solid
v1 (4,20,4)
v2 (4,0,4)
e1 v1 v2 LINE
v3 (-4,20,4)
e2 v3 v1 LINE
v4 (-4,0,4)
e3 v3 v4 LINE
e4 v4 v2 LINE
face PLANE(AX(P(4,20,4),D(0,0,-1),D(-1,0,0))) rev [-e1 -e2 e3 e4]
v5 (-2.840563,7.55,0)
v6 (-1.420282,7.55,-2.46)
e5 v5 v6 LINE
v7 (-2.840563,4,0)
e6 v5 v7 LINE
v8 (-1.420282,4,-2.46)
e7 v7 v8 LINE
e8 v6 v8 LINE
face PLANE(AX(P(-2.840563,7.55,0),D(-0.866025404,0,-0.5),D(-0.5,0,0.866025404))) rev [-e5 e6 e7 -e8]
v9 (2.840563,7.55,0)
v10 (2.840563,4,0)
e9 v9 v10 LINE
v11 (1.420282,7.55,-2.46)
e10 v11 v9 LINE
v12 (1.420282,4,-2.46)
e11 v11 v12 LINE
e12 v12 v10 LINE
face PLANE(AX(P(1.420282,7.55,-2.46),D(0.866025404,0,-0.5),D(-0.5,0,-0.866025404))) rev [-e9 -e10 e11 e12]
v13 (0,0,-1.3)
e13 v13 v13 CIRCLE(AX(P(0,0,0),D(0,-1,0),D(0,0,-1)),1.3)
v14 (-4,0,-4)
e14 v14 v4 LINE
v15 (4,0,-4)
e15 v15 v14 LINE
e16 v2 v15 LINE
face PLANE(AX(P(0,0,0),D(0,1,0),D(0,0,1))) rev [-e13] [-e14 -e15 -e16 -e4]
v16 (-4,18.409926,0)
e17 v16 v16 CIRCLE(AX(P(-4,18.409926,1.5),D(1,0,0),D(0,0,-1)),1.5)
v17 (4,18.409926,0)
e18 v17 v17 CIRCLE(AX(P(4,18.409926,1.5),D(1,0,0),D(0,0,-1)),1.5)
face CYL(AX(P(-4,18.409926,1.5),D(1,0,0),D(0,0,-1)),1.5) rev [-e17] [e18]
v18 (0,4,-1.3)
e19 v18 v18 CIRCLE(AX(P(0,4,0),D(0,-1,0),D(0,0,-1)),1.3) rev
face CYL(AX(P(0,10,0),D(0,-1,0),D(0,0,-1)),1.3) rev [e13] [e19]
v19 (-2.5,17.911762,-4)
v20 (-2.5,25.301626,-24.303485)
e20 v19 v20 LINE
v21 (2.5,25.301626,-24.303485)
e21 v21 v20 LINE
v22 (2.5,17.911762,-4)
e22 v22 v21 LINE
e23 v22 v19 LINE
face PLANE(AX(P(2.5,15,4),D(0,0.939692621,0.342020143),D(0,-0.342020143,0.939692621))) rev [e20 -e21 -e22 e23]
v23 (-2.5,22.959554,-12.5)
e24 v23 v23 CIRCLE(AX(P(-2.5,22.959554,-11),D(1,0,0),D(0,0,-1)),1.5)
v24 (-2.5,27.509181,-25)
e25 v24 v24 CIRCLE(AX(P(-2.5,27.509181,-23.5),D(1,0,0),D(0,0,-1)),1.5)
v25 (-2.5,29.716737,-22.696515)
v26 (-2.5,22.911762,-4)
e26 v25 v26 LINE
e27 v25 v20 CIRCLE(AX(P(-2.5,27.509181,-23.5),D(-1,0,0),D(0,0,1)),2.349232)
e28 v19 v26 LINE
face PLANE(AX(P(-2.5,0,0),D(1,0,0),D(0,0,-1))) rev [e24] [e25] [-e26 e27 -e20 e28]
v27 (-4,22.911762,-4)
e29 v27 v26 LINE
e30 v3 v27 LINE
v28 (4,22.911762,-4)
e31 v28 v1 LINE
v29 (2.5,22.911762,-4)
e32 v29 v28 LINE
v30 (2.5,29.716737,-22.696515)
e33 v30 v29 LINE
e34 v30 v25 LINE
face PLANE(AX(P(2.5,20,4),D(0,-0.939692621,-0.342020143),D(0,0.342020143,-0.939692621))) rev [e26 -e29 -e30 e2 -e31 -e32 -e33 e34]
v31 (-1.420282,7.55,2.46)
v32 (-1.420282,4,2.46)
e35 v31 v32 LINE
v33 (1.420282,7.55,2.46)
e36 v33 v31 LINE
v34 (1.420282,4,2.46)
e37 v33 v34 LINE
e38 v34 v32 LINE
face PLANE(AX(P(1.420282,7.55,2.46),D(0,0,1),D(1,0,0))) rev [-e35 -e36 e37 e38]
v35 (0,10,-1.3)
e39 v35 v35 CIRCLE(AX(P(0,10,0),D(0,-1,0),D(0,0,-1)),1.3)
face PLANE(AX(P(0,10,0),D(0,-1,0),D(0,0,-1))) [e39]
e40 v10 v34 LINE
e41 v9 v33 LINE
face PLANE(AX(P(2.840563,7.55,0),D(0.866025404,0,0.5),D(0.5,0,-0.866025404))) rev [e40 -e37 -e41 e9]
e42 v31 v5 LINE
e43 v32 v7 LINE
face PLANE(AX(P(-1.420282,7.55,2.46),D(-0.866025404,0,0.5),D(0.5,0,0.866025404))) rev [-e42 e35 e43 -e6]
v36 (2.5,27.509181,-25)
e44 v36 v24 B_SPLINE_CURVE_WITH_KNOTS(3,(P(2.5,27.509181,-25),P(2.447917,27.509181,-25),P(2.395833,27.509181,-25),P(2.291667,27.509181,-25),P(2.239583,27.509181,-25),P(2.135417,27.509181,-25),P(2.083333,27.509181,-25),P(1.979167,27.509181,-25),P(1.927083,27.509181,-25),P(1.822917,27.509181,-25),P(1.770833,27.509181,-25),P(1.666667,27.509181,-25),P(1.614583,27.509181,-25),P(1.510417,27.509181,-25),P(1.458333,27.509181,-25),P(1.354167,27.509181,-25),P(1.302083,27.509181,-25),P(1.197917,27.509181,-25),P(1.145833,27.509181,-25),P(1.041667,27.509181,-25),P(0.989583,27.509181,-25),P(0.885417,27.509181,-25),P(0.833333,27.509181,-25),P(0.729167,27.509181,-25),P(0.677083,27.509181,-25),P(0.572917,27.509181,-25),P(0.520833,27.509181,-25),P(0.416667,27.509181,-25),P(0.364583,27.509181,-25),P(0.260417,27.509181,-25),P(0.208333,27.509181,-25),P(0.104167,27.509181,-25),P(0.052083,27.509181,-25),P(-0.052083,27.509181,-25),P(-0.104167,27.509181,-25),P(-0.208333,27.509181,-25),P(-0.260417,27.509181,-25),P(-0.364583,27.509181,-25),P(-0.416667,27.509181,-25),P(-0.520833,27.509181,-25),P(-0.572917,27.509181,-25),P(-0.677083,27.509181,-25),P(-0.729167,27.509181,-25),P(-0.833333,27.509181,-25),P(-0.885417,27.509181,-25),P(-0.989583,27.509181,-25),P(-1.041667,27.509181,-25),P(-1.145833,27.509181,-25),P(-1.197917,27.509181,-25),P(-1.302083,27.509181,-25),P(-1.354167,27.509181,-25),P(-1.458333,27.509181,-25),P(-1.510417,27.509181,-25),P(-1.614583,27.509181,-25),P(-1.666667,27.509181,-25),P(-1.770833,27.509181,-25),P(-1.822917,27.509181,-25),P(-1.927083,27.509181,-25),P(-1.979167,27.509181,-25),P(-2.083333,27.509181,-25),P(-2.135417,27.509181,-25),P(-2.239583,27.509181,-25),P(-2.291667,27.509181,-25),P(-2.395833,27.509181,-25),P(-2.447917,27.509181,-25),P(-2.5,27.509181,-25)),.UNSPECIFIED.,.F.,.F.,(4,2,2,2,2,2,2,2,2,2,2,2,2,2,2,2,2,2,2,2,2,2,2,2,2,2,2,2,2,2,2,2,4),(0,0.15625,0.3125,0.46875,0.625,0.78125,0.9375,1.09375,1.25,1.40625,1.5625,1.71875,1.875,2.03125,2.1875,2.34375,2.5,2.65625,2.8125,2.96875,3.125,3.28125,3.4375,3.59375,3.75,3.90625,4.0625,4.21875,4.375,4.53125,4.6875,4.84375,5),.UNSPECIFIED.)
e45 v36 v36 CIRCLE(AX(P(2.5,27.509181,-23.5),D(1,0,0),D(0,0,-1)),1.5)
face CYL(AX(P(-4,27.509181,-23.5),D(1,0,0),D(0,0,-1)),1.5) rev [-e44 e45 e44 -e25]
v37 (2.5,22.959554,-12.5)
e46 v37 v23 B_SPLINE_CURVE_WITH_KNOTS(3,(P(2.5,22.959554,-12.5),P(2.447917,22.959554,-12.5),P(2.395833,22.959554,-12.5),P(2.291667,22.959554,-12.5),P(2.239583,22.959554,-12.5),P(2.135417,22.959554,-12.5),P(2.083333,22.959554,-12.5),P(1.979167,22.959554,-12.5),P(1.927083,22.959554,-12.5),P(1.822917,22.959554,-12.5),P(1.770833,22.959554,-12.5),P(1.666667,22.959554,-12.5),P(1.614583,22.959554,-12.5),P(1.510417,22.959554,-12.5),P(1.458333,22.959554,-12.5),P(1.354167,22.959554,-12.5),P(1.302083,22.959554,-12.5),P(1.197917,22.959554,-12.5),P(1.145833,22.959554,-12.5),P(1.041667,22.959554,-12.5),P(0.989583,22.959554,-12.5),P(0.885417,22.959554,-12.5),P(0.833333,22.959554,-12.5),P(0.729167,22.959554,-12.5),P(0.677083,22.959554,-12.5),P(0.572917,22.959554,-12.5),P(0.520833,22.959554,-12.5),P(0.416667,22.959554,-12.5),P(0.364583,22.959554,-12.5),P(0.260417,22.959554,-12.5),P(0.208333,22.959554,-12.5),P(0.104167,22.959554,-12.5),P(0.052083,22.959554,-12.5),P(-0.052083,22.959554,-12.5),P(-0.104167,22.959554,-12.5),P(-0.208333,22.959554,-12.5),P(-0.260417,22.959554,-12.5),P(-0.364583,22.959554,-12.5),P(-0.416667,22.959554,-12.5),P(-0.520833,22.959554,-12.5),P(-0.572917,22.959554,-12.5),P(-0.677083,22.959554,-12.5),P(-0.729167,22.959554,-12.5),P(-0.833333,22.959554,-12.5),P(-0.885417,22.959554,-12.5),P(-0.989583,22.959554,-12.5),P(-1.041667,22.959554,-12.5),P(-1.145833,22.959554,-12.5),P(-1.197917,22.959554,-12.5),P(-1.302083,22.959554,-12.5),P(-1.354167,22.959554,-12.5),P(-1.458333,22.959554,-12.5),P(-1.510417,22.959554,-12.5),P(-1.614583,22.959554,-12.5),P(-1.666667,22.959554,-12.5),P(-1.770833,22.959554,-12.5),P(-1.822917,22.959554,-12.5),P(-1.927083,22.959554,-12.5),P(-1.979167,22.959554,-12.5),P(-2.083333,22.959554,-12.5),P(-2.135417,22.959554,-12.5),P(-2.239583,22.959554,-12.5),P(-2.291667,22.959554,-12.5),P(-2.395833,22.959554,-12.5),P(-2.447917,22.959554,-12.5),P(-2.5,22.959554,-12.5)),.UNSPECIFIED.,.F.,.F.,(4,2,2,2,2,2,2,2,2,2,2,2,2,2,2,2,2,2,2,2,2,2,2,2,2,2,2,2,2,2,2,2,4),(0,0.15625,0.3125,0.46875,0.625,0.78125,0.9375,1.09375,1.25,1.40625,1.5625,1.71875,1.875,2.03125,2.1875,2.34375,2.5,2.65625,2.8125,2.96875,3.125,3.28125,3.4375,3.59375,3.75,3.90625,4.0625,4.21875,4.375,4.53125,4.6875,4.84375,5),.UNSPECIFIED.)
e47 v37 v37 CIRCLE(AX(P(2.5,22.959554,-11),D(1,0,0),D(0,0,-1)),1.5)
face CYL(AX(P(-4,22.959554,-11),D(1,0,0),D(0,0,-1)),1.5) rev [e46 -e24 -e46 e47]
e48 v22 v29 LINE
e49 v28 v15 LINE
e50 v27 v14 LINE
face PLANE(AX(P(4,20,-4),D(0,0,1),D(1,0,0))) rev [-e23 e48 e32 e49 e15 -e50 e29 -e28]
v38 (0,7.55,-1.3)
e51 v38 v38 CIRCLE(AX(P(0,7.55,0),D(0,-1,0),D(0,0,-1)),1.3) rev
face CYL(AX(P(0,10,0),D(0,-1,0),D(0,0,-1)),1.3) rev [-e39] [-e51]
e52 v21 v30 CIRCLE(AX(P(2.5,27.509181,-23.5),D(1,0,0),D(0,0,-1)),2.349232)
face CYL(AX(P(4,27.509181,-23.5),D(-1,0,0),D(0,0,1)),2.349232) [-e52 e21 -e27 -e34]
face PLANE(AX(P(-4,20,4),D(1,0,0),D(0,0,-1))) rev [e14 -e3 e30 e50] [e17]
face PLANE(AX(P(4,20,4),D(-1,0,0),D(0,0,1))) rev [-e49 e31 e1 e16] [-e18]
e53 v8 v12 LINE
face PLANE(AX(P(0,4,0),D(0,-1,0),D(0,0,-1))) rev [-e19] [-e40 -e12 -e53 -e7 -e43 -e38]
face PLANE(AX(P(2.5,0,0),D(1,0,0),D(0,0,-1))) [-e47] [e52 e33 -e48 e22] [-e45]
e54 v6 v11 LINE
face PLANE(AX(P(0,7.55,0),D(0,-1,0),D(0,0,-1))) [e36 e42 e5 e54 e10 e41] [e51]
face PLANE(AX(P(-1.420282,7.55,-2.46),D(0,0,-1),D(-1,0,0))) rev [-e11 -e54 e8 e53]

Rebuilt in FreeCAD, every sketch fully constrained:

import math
import FreeCAD as App
import Part
import Sketcher
Q = App.Units.Quantity


def add_polygon(sketch, points):
    """Adds a closed chain of lines whose ends are joined by coincident constraints."""
    first, n = sketch.GeometryCount, len(points)
    for a, b in zip(points, points[1:] + points[:1]):
        sketch.addGeometry(Part.LineSegment(App.Vector(*a, 0), App.Vector(*b, 0)), False)
    for i in range(n):
        sketch.addConstraint(Sketcher.Constraint("Coincident", first + i, 2, first + (i + 1) % n, 1))

doc = App.newDocument("Part")
params = doc.addObject("Spreadsheet::Sheet", "Params")
for row, (alias, value) in enumerate([
    ("sketch1_width", "8 mm"),
    ("pad1_length", "20 mm"),
    ("sketch2_width", "5 mm"),
    ("pad2_length", "5 mm"),
    ("sketch3_diameter", "3 mm"),
    ("sketch4_width", "5 mm"),
    ("sketch5_diameter", "2.6 mm"),
    ("pocket3_length", "10 mm"),
    ("sketch6_height", "8 mm"),
    ("pad3_length", "8 mm"),
    ("pocket4_length", "3.55 mm"),
], start=1):
    params.set(f"A{row}", alias)
    params.set(f"B{row}", "=" + value)
    params.setAlias(f"B{row}", alias)

body = doc.addObject("PartDesign::Body", "Body")

# Sketch on XZ plane
sketch1 = doc.addObject("Sketcher::SketchObject", "Sketch")
body.addObject(sketch1)
sketch1.AttachmentSupport = (doc.XZ_Plane, [""])
sketch1.MapMode = "FlatFace"
add_polygon(sketch1, [(-4, -4), (-4, 4), (4, 4), (4, -4)])  # lines 0-3
sketch1.addConstraint([
    Sketcher.Constraint("Vertical", 0),
    Sketcher.Constraint("Horizontal", 1),
    Sketcher.Constraint("Vertical", 2),
    Sketcher.Constraint("Horizontal", 3),
    Sketcher.Constraint("Symmetric", 0, 2, 2, 2, -1, 1),
    Sketcher.Constraint("Equal", 3, 0),
    Sketcher.Constraint("DistanceX", 1, 1, 1, 2, 8.0),
])
sketch1.setExpression("Constraints[10]", "Params.sketch1_width")
pad1 = doc.addObject("PartDesign::Pad", "Pad")
body.addObject(pad1)
pad1.Profile = sketch1
pad1.setExpression("Length", "Params.pad1_length")
pad1.Reversed = True

# Sketch on YZ plane
sketch2 = doc.addObject("Sketcher::SketchObject", "Sketch001")
body.addObject(sketch2)
sketch2.AttachmentSupport = (doc.YZ_Plane, [""])
sketch2.MapMode = "FlatFace"
add_polygon(sketch2, [(31, -26), (20, 4), (15, 4), (26, -26)])  # lines 0-3
sketch2.addConstraint([
    Sketcher.Constraint("Horizontal", 1),
    Sketcher.Constraint("Horizontal", 3),
    Sketcher.Constraint("Parallel", 0, 2),
    Sketcher.Constraint("DistanceX", 1, 2, 1, 1, 5.0),
    Sketcher.Constraint("Angle", 0, Q("110 deg")),
    Sketcher.Constraint("DistanceX", -1, 1, 0, 2, 20.0),
    Sketcher.Constraint("DistanceY", -1, 1, 0, 2, 4.0),
    Sketcher.Constraint("DistanceY", 2, 2, -1, 1, 26.0),
])
sketch2.setExpression("Constraints[7]", "Params.sketch2_width")
pad2 = doc.addObject("PartDesign::Pad", "Pad001")
body.addObject(pad2)
pad2.Profile = sketch2
pad2.setExpression("Length", "Params.pad2_length")
pad2.Midplane = True

# Sketch on YZ plane
sketch3 = doc.addObject("Sketcher::SketchObject", "Sketch002")
body.addObject(sketch3)
sketch3.AttachmentSupport = (doc.YZ_Plane, [""])
sketch3.MapMode = "FlatFace"
sketch3.AttachmentOffset = App.Placement(App.Vector(0, 0, 2.5), App.Rotation())
sketch3.addGeometry([
    Part.Circle(App.Vector(18.4, 1.5, 0), App.Vector(0, 0, 1), 1.5),
    Part.Circle(App.Vector(27.5, -23.5, 0), App.Vector(0, 0, 1), 1.5),
    Part.Circle(App.Vector(23, -11, 0), App.Vector(0, 0, 1), 1.5),
], False)
sketch3.addConstraint([
    Sketcher.Constraint("Equal", 0, 1),
    Sketcher.Constraint("Equal", 1, 2),
    Sketcher.Constraint("Diameter", 0, 3.0),
    Sketcher.Constraint("DistanceY", 2, 3, -1, 1, 11.0),
    Sketcher.Constraint("DistanceY", 1, 3, 0, 3, 25.0),
    Sketcher.Constraint("DistanceY", -1, 1, 0, 3, 1.5),
    Sketcher.Constraint("DistanceX", -1, 1, 1, 3, 27.509181),
    Sketcher.Constraint("DistanceX", -1, 1, 0, 3, 18.409926),
    Sketcher.Constraint("DistanceX", -1, 1, 2, 3, 22.959554),
])
sketch3.setExpression("Constraints[2]", "Params.sketch3_diameter")
pocket1 = doc.addObject("PartDesign::Pocket", "Pocket")
body.addObject(pocket1)
pocket1.Profile = sketch3
pocket1.Type = "ThroughAll"
pocket1.Midplane = True

# Sketch on YZ plane
sketch4 = doc.addObject("Sketcher::SketchObject", "Sketch003")
body.addObject(sketch4)
sketch4.AttachmentSupport = (doc.YZ_Plane, [""])
sketch4.MapMode = "FlatFace"
sketch4.AttachmentOffset = App.Placement(App.Vector(0, 0, -2.5), App.Rotation())
sketch4.addGeometry([
    Part.LineSegment(App.Vector(30.9, -26, 0), App.Vector(25.9, -26, 0)),
    Part.LineSegment(App.Vector(25.9, -26, 0), App.Vector(25.3, -24.3, 0)),
    Part.ArcOfCircle(Part.Circle(App.Vector(27.5, -23.5, 0), App.Vector(0, 0, 1), 2.3), math.radians(-160), math.radians(20)),
    Part.LineSegment(App.Vector(29.7, -22.7, 0), App.Vector(30.9, -26, 0)),
], False)
sketch4.addConstraint([
    Sketcher.Constraint("Coincident", 0, 2, 1, 1),
    Sketcher.Constraint("Tangent", 1, 2, 2, 1),
    Sketcher.Constraint("Tangent", 2, 2, 3, 1),
    Sketcher.Constraint("Coincident", 3, 2, 0, 1),
    Sketcher.Constraint("Horizontal", 0),
    Sketcher.Constraint("Parallel", 1, 3),
    Sketcher.Constraint("DistanceX", 0, 2, 0, 1, 5.0),
    Sketcher.Constraint("Angle", 1, Q("110 deg")),
    Sketcher.Constraint("DistanceY", 0, 2, -1, 1, 26.0),
    Sketcher.Constraint("DistanceY", 2, 3, -1, 1, 23.5),
    Sketcher.Constraint("DistanceX", -1, 1, 2, 3, 27.509181),
])
sketch4.setExpression("Constraints[6]", "Params.sketch4_width")
pocket2 = doc.addObject("PartDesign::Pocket", "Pocket001")
body.addObject(pocket2)
pocket2.Profile = sketch4
pocket2.Type = "ThroughAll"
pocket2.Reversed = True

# Sketch on XZ plane
sketch5 = doc.addObject("Sketcher::SketchObject", "Sketch004")
body.addObject(sketch5)
sketch5.AttachmentSupport = (doc.XZ_Plane, [""])
sketch5.MapMode = "FlatFace"
sketch5.addGeometry(Part.Circle(App.Vector(0, 0, 0), App.Vector(0, 0, 1), 1.3), False)
sketch5.addConstraint([
    Sketcher.Constraint("Coincident", 0, 3, -1, 1),
    Sketcher.Constraint("Diameter", 0, 2.6),
])
sketch5.setExpression("Constraints[1]", "Params.sketch5_diameter")
pocket3 = doc.addObject("PartDesign::Pocket", "Pocket002")
body.addObject(pocket3)
pocket3.Profile = sketch5
pocket3.setExpression("Length", "Params.pocket3_length")

# Sketch on YZ plane
sketch6 = doc.addObject("Sketcher::SketchObject", "Sketch005")
body.addObject(sketch6)
sketch6.AttachmentSupport = (doc.YZ_Plane, [""])
sketch6.MapMode = "FlatFace"
sketch6.AttachmentOffset = App.Placement(App.Vector(0, 0, 4), App.Rotation())
add_polygon(sketch6, [(20, 4), (20, -4), (22.9, -4)])  # lines 0-2
sketch6.addConstraint([
    Sketcher.Constraint("Vertical", 0),
    Sketcher.Constraint("Horizontal", 1),
    Sketcher.Constraint("DistanceY", 0, 2, 0, 1, 8.0),
    Sketcher.Constraint("Angle", 2, Q("110 deg")),
    Sketcher.Constraint("DistanceX", -1, 1, 0, 2, 20.0),
    Sketcher.Constraint("DistanceY", 0, 2, -1, 1, 4.0),
])
sketch6.setExpression("Constraints[5]", "Params.sketch6_height")
pad3 = doc.addObject("PartDesign::Pad", "Pad002")
body.addObject(pad3)
pad3.Profile = sketch6
pad3.setExpression("Length", "Params.pad3_length")
pad3.Reversed = True

# Sketch on XZ plane
sketch7 = doc.addObject("Sketcher::SketchObject", "Sketch006")
body.addObject(sketch7)
sketch7.AttachmentSupport = (doc.XZ_Plane, [""])
sketch7.MapMode = "FlatFace"
sketch7.AttachmentOffset = App.Placement(App.Vector(0, 0, -4), App.Rotation())
add_polygon(sketch7, [(2.8, 0), (1.4, 2.5), (-1.4, 2.5), (-2.8, 0), (-1.4, -2.5), (1.4, -2.5)])  # lines 0-5
sketch7.addConstraint([
    Sketcher.Constraint("Horizontal", 1),
    Sketcher.Constraint("Horizontal", 4),
    Sketcher.Constraint("Symmetric", 0, 2, 3, 2, -1, 1),
    Sketcher.Constraint("Symmetric", 2, 2, 5, 2, -1, 1),
    Sketcher.Constraint("PointOnObject", 2, 2, -1),
    Sketcher.Constraint("Parallel", 2, 5),
    Sketcher.Constraint("Vertical", 1, 2, 3, 2),
    Sketcher.Constraint("Angle", 0, Q("120 deg")),
    Sketcher.Constraint("DistanceY", -1, 1, 0, 2, 2.46),
    Sketcher.Constraint("DistanceX", 1, 2, 1, 1, 2.840563),
])
pocket4 = doc.addObject("PartDesign::Pocket", "Pocket003")
body.addObject(pocket4)
pocket4.Profile = sketch7
pocket4.setExpression("Length", "Params.pocket4_length")

doc.recompute()
